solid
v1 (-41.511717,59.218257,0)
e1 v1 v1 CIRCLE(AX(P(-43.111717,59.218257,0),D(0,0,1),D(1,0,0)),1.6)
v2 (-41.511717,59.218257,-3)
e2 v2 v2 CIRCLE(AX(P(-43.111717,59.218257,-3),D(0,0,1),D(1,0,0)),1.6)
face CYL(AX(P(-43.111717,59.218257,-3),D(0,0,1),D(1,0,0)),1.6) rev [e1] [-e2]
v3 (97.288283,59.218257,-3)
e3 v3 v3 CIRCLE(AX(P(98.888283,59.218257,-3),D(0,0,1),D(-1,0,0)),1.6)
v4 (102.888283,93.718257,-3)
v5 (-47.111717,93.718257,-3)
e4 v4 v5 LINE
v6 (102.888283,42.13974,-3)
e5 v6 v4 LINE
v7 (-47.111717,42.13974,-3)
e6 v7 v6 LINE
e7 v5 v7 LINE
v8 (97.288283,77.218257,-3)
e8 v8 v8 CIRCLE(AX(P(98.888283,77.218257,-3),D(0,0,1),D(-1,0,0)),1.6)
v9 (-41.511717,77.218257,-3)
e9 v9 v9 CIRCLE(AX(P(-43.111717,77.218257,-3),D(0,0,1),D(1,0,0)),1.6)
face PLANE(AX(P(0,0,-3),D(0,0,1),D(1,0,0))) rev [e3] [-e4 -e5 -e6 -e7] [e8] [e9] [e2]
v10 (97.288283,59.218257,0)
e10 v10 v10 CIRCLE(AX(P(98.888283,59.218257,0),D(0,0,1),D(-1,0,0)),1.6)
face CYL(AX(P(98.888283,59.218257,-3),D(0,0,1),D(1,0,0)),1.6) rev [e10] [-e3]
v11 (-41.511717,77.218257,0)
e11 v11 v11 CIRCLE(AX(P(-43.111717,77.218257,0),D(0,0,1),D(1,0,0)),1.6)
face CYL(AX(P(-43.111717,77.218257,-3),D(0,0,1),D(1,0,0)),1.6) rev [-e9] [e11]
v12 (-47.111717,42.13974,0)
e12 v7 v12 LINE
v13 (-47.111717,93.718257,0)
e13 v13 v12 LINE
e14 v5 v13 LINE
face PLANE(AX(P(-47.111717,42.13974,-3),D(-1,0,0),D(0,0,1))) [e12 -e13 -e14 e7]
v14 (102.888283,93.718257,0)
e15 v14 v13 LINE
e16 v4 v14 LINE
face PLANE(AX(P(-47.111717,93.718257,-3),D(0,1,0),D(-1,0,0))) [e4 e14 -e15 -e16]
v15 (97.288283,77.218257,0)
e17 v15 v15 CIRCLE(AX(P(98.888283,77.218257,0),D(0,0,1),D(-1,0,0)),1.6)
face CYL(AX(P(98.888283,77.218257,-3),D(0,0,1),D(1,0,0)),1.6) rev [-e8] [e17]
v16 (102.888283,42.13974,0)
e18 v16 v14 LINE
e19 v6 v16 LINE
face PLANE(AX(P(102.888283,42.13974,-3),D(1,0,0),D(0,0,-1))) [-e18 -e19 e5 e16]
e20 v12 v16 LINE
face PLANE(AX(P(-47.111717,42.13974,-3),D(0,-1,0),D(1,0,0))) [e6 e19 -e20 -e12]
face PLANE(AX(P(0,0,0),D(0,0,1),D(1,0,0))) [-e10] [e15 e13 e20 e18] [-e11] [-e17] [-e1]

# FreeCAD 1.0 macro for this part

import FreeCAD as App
import Part
import Sketcher
Q = App.Units.Quantity


def add_polygon(sketch, points):
    """Adds a closed chain of lines whose ends are joined by coincident constraints."""
    first, n = sketch.GeometryCount, len(points)
    for a, b in zip(points, points[1:] + points[:1]):
        sketch.addGeometry(Part.LineSegment(App.Vector(*a, 0), App.Vector(*b, 0)), False)
    for i in range(n):
        sketch.addConstraint(Sketcher.Constraint("Coincident", first + i, 2, first + (i + 1) % n, 1))

doc = App.newDocument("Part")
params = doc.addObject("Spreadsheet::Sheet", "Params")
for row, (alias, value) in enumerate([
    ("sketch1_diameter", "3.2 mm"),
    ("sketch1_width", "150 mm"),
    ("pad1_length", "3 mm"),
], start=1):
    params.set(f"A{row}", alias)
    params.set(f"B{row}", "=" + value)
    params.setAlias(f"B{row}", alias)

body = doc.addObject("PartDesign::Body", "Body")

sketch1 = body.newObject("Sketcher::SketchObject", "Sketch")
sketch1.AttachmentSupport = (doc.getObject("XY_Plane"), [""])
sketch1.MapMode = "FlatFace"
add_polygon(sketch1, [(-47.1, 93.7), (-47.1, 42.1), (102.9, 42.1), (102.9, 93.7)])
sketch1.addGeometry(Part.Circle(App.Vector(-43.1, 59.2, 0), App.Vector(0, 0, 1), 1.6), False)
sketch1.addGeometry(Part.Circle(App.Vector(98.9, 59.2, 0), App.Vector(0, 0, 1), 1.6), False)
sketch1.addGeometry(Part.Circle(App.Vector(-43.1, 77.2, 0), App.Vector(0, 0, 1), 1.6), False)
sketch1.addGeometry(Part.Circle(App.Vector(98.9, 77.2, 0), App.Vector(0, 0, 1), 1.6), False)
sketch1.addConstraint(Sketcher.Constraint("Vertical", 0))
sketch1.addConstraint(Sketcher.Constraint("Horizontal", 1))
sketch1.addConstraint(Sketcher.Constraint("Vertical", 2))
sketch1.addConstraint(Sketcher.Constraint("Horizontal", 3))
sketch1.addConstraint(Sketcher.Constraint("Equal", 4, 5))
sketch1.addConstraint(Sketcher.Constraint("Equal", 5, 6))
sketch1.addConstraint(Sketcher.Constraint("Equal", 6, 7))
sketch1.addConstraint(Sketcher.Constraint("Horizontal", 4, 3, 5, 3))
sketch1.addConstraint(Sketcher.Constraint("Horizontal", 6, 3, 7, 3))
sketch1.addConstraint(Sketcher.Constraint("Vertical", 4, 3, 6, 3))
sketch1.addConstraint(Sketcher.Constraint("Vertical", 5, 3, 7, 3))
sketch1.addConstraint(Sketcher.Constraint("Diameter", 4, Q("3.2 mm")))
sketch1.addConstraint(Sketcher.Constraint("DistanceX", 1, 1, 1, 2, Q("150 mm")))
sketch1.addConstraint(Sketcher.Constraint("DistanceX", 4, 3, 5, 3, Q("142 mm")))
sketch1.addConstraint(Sketcher.Constraint("DistanceY", 4, 3, 6, 3, Q("18 mm")))
sketch1.addConstraint(Sketcher.Constraint("DistanceX", 0, 2, 4, 3, Q("4 mm")))
sketch1.addConstraint(Sketcher.Constraint("DistanceY", 7, 3, 2, 2, Q("16.5 mm")))
sketch1.addConstraint(Sketcher.Constraint("DistanceY", 0, 2, 0, 1, Q("51.578517 mm")))
sketch1.addConstraint(Sketcher.Constraint("DistanceY", -1, 1, 0, 2, Q("42.13974 mm")))
sketch1.addConstraint(Sketcher.Constraint("DistanceX", 4, 3, -1, 1, Q("43.111717 mm")))
sketch1.setExpression("Constraints[15]", "Params.sketch1_diameter")
sketch1.setExpression("Constraints[16]", "Params.sketch1_width")
pad1 = body.newObject("PartDesign::Pad", "Pad")
pad1.Profile = sketch1
pad1.setExpression("Length", "Params.pad1_length")
pad1.Reversed = True

doc.recompute()
